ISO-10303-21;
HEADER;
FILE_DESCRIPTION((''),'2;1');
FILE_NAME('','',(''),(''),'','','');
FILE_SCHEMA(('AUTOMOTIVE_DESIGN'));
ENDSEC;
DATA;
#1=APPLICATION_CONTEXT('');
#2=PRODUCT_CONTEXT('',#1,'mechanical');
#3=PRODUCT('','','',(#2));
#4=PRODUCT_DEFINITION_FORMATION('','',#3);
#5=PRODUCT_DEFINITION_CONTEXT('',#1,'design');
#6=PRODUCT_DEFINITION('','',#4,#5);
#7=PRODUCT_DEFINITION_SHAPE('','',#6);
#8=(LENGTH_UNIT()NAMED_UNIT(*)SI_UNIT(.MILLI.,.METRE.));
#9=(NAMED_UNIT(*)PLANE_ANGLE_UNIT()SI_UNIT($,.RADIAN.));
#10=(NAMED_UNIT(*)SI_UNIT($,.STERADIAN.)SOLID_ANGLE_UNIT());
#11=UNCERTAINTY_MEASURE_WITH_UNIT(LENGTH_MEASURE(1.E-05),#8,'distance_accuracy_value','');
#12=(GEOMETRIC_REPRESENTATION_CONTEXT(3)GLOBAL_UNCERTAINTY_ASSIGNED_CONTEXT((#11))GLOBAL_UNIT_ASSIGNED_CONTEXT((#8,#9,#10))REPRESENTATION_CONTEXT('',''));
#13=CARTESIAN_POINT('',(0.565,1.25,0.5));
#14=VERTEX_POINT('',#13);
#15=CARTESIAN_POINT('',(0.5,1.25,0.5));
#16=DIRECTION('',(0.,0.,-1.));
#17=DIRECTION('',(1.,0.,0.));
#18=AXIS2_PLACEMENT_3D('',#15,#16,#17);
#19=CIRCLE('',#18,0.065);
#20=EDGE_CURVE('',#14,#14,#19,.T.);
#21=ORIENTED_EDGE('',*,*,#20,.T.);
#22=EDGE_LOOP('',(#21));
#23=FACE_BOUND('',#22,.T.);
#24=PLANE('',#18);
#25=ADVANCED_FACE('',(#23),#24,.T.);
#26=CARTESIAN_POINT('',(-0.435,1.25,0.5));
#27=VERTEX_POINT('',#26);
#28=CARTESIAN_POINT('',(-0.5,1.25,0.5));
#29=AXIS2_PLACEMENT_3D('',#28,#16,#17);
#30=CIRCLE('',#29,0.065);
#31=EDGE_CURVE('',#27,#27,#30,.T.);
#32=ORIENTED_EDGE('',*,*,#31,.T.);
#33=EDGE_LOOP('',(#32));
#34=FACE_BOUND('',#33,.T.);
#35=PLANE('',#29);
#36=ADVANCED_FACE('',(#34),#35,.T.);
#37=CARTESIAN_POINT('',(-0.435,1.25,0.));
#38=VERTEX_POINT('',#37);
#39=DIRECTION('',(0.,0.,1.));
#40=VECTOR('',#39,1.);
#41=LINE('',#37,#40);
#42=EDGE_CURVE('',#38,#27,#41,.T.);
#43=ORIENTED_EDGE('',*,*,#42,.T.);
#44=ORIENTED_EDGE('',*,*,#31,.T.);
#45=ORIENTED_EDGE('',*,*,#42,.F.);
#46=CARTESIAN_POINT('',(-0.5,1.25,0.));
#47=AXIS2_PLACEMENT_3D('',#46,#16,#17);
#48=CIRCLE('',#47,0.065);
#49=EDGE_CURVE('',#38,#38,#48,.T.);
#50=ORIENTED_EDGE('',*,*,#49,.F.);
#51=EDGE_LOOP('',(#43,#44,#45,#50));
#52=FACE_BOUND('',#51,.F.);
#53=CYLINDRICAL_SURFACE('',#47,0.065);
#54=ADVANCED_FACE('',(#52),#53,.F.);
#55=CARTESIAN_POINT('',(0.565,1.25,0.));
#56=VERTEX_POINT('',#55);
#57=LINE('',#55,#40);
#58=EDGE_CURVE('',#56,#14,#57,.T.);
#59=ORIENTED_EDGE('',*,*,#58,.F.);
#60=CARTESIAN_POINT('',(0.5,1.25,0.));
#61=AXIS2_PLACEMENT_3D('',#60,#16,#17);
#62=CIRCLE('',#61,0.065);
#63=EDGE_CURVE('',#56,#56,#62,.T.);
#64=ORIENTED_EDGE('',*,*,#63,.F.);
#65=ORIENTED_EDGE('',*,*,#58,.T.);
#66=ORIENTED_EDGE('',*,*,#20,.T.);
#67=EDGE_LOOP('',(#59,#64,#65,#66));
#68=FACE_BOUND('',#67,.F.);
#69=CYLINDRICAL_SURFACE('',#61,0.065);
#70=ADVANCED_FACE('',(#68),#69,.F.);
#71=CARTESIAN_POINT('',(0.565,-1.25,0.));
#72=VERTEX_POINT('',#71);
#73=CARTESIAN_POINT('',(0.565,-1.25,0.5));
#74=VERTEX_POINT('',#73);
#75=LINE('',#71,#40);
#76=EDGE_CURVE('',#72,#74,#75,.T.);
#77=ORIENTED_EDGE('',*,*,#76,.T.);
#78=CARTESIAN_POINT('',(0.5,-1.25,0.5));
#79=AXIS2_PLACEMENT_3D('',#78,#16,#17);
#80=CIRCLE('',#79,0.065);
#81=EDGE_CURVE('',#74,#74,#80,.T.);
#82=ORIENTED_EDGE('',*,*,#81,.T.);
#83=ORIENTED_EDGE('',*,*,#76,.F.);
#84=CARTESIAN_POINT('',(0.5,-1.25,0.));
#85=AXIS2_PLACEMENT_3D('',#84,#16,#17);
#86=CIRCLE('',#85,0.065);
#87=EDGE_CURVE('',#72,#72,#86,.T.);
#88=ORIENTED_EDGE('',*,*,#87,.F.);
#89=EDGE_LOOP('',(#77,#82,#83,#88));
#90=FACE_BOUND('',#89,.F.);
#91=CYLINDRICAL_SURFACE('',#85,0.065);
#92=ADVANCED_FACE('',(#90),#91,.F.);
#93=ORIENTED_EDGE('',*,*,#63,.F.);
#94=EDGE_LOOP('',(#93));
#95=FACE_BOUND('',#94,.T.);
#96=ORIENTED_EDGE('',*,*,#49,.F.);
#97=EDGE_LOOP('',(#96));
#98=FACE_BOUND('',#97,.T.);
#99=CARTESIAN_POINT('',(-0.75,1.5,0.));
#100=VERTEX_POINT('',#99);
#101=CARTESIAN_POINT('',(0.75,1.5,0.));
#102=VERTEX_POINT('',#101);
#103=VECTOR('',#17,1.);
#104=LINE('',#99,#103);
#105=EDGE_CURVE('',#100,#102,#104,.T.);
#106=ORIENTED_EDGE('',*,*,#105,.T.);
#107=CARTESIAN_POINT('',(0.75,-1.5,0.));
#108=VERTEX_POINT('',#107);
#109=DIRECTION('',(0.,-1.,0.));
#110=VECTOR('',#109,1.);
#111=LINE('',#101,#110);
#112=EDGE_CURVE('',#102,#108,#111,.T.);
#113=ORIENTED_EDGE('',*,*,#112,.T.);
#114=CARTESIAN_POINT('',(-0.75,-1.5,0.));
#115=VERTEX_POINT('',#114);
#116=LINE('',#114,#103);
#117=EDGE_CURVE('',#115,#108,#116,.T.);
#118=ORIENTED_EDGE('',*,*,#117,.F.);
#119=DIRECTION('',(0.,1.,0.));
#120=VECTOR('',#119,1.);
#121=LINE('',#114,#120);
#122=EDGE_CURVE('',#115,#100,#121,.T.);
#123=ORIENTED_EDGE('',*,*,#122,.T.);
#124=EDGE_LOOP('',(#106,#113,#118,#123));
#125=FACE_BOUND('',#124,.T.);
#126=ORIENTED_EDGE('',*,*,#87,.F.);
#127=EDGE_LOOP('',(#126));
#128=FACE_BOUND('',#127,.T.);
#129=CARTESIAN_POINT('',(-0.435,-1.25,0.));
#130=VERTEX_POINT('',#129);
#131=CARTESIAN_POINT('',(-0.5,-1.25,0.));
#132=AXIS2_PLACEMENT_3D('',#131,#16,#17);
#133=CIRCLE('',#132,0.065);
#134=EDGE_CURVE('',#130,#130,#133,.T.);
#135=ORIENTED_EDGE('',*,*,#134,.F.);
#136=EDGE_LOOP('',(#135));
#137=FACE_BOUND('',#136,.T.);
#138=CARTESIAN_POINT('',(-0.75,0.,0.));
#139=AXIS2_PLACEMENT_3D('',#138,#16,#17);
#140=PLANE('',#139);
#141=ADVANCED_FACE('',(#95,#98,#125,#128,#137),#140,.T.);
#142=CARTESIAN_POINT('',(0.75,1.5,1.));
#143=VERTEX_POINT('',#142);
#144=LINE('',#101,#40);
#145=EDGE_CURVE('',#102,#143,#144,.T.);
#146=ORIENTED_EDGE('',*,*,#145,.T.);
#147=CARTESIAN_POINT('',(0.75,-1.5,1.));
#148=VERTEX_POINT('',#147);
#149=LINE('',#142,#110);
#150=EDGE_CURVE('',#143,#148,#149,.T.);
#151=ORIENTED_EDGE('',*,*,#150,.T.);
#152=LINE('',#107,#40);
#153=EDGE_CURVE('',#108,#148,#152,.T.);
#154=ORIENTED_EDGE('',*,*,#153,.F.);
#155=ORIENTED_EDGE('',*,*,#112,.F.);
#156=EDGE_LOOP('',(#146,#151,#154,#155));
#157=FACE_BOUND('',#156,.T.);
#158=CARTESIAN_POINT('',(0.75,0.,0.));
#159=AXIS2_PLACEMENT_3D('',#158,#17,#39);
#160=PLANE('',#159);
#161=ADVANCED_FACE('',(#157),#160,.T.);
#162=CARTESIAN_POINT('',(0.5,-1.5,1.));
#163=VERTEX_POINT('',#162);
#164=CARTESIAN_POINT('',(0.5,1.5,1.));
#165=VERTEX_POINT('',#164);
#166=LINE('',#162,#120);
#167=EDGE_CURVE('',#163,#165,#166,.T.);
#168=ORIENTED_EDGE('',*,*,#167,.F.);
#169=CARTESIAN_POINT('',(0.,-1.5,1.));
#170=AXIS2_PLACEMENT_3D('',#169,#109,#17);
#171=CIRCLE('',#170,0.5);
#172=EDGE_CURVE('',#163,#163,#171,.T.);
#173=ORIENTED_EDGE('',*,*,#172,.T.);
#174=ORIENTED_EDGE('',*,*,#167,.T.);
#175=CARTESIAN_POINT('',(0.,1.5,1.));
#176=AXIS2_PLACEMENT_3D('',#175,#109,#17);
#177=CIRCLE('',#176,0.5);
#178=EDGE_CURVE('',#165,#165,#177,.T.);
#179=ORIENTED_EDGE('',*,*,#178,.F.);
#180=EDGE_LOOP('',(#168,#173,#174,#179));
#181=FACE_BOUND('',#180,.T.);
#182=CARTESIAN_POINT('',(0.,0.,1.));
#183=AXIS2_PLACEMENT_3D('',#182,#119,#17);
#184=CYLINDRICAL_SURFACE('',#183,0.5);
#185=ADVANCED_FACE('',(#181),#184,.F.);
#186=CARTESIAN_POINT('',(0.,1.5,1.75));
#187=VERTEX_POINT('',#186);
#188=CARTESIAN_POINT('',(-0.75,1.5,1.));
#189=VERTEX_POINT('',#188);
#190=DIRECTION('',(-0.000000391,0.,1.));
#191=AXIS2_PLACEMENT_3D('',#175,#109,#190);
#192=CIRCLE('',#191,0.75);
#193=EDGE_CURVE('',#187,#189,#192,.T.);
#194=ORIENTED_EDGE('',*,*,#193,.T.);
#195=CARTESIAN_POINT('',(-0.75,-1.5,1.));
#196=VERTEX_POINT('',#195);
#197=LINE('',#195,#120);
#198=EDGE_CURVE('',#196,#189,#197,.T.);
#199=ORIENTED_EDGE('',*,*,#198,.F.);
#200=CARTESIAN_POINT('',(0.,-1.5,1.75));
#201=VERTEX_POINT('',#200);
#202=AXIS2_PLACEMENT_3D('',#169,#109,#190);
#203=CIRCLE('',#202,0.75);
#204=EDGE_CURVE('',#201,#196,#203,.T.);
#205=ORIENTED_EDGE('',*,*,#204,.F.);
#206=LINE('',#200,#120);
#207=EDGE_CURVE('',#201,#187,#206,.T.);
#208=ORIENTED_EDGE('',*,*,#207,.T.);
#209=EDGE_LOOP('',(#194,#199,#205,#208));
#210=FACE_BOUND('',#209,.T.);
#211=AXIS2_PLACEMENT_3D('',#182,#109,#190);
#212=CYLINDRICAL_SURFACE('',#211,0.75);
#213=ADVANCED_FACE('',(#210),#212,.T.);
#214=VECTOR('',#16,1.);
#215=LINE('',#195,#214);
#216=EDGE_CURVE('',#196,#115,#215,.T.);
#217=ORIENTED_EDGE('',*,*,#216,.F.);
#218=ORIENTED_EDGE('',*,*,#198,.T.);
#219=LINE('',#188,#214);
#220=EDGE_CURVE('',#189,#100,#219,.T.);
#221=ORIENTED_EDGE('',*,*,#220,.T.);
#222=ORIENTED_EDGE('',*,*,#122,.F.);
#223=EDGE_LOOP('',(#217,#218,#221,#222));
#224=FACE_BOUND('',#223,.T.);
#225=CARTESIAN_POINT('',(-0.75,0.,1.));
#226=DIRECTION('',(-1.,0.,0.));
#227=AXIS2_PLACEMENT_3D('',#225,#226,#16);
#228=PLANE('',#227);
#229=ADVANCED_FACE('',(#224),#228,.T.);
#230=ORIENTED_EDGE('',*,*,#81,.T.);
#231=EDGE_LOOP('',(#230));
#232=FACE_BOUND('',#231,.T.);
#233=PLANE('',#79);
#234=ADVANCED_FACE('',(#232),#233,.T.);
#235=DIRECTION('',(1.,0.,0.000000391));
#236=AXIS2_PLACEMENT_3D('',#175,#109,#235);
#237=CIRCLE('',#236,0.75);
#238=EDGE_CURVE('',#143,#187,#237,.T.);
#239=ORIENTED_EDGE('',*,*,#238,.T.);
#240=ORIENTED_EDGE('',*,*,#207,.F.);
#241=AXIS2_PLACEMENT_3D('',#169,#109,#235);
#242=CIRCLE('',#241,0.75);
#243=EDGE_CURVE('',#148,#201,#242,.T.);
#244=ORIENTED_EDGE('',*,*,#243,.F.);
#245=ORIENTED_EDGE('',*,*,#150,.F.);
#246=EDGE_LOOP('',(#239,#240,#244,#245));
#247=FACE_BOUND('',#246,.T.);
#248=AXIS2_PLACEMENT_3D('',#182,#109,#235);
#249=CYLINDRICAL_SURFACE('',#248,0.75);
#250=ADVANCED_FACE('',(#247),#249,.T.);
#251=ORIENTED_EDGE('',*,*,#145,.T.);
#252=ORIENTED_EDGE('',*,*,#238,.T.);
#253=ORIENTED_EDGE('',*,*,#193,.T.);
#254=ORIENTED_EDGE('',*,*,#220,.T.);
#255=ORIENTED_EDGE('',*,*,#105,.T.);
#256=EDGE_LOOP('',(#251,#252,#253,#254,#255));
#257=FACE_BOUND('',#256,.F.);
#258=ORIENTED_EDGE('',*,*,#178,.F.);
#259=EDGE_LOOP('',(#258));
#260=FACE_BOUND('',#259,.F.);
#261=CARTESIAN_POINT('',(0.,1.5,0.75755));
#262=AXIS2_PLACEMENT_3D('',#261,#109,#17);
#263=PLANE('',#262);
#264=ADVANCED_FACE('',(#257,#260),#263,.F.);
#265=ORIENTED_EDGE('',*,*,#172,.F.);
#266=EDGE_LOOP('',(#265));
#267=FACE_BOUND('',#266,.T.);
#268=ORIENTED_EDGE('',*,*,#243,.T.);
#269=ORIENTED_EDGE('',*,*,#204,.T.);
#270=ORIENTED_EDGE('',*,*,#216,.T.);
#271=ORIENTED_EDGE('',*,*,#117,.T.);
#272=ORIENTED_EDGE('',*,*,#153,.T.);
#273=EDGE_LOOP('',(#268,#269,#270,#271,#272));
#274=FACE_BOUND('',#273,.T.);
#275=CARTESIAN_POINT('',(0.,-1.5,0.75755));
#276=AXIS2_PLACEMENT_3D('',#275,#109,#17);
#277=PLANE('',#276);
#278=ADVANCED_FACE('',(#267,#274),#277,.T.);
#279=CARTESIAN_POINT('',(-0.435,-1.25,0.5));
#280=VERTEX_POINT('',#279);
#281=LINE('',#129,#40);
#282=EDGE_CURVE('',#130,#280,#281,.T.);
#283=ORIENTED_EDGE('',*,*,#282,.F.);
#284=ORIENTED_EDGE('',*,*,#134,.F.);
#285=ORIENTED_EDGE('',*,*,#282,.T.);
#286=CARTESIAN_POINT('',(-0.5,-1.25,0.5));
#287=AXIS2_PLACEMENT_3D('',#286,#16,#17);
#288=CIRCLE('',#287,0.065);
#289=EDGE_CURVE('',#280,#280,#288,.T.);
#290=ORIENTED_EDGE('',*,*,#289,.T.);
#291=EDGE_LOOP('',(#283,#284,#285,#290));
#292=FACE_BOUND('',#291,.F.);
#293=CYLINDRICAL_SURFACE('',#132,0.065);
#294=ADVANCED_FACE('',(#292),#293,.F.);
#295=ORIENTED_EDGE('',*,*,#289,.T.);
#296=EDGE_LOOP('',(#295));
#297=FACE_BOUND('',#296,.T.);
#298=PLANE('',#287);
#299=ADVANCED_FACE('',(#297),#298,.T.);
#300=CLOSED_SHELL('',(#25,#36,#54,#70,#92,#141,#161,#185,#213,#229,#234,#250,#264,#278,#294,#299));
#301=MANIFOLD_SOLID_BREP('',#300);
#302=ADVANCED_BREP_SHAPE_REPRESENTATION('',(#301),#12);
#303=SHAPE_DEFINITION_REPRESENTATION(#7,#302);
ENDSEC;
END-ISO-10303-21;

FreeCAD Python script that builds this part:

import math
import FreeCAD as App
import Part
import Sketcher
Q = App.Units.Quantity

doc = App.newDocument("Part")
params = doc.addObject("Spreadsheet::Sheet", "Params")
for row, (alias, value) in enumerate([
    ("sketch1_diameter", "1 mm"),
    ("sketch1_height", "1 mm"),
    ("sketch1_radius", "0.75 mm"),
    ("pad1_length", "3 mm"),
    ("sketch2_diameter", "0.13 mm"),
    ("pocket1_length", "0.5 mm"),
], start=1):
    params.set(f"A{row}", alias)
    params.set(f"B{row}", "=" + value)
    params.setAlias(f"B{row}", alias)

body = doc.addObject("PartDesign::Body", "Body")

# Sketch on XZ plane
sketch1 = doc.addObject("Sketcher::SketchObject", "Sketch")
body.addObject(sketch1)
sketch1.AttachmentSupport = (doc.XZ_Plane, [""])
sketch1.MapMode = "FlatFace"
sketch1.addGeometry([
    Part.LineSegment(App.Vector(-0.75, 0, 0), App.Vector(0.75, 0, 0)),  # 0
    Part.LineSegment(App.Vector(0.75, 0, 0), App.Vector(0.75, 1, 0)),  # 1
    Part.ArcOfCircle(Part.Circle(App.Vector(0, 1, 0), App.Vector(0, 0, 1), 0.75), math.radians(0.000022), math.radians(89.999978)),  # 2
    Part.ArcOfCircle(Part.Circle(App.Vector(0, 1, 0), App.Vector(0, 0, 1), 0.75), math.radians(90.000022), math.radians(179.999978)),  # 3
    Part.LineSegment(App.Vector(-0.75, 1, 0), App.Vector(-0.75, 0, 0)),  # 4
    Part.Circle(App.Vector(0, 1, 0), App.Vector(0, 0, 1), 0.5),  # 5
], False)
sketch1.addConstraint([
    Sketcher.Constraint("Coincident", 0, 2, 1, 1),
    Sketcher.Constraint("Tangent", 1, 2, 2, 1),
    Sketcher.Constraint("Tangent", 2, 2, 3, 1),
    Sketcher.Constraint("Tangent", 3, 2, 4, 1),
    Sketcher.Constraint("Coincident", 4, 2, 0, 1),
    Sketcher.Constraint("Horizontal", 0),
    Sketcher.Constraint("Vertical", 1),
    Sketcher.Constraint("Vertical", 4),
    Sketcher.Constraint("Coincident", 5, 3, 2, 3),
    Sketcher.Constraint("Equal", 2, 3),
    Sketcher.Constraint("Symmetric", 0, 2, 4, 2, -1, 1),
    Sketcher.Constraint("PointOnObject", 2, 2, -2),
    Sketcher.Constraint("Diameter", 5, Q("1 mm")),
    Sketcher.Constraint("DistanceY", 1, 1, 1, 2, Q("1 mm")),
    Sketcher.Constraint("Radius", 2, Q("0.75 mm")),
])
sketch1.setExpression("Constraints[12]", "Params.sketch1_diameter")
sketch1.setExpression("Constraints[13]", "Params.sketch1_height")
sketch1.setExpression("Constraints[14]", "Params.sketch1_radius")
pad1 = doc.addObject("PartDesign::Pad", "Pad")
body.addObject(pad1)
pad1.Profile = sketch1
pad1.setExpression("Length", "Params.pad1_length")
pad1.Midplane = True

# Sketch on XY plane
sketch2 = doc.addObject("Sketcher::SketchObject", "Sketch001")
body.addObject(sketch2)
sketch2.AttachmentSupport = (doc.XY_Plane, [""])
sketch2.MapMode = "FlatFace"
sketch2.addGeometry([
    Part.Circle(App.Vector(-0.5, -1.25, 0), App.Vector(0, 0, 1), 0.065),
    Part.Circle(App.Vector(0.5, -1.25, 0), App.Vector(0, 0, 1), 0.065),
    Part.Circle(App.Vector(0.5, 1.25, 0), App.Vector(0, 0, 1), 0.065),
    Part.Circle(App.Vector(-0.5, 1.25, 0), App.Vector(0, 0, 1), 0.065),
], False)
sketch2.addConstraint([
    Sketcher.Constraint("Equal", 0, 1),
    Sketcher.Constraint("Equal", 1, 2),
    Sketcher.Constraint("Equal", 2, 3),
    Sketcher.Constraint("Symmetric", 0, 3, 2, 3, -1, 1),
    Sketcher.Constraint("Symmetric", 1, 3, 3, 3, -1, 1),
    Sketcher.Constraint("Symmetric", 0, 3, 1, 3, -2),
    Sketcher.Constraint("Diameter", 0, Q("0.13 mm")),
    Sketcher.Constraint("DistanceX", 0, 3, 1, 3, Q("1 mm")),
    Sketcher.Constraint("DistanceY", 1, 3, 2, 3, Q("2.5 mm")),
])
sketch2.setExpression("Constraints[6]", "Params.sketch2_diameter")
pocket1 = doc.addObject("PartDesign::Pocket", "Pocket")
body.addObject(pocket1)
pocket1.Profile = sketch2
pocket1.setExpression("Length", "Params.pocket1_length")
pocket1.Reversed = True

doc.recompute()
